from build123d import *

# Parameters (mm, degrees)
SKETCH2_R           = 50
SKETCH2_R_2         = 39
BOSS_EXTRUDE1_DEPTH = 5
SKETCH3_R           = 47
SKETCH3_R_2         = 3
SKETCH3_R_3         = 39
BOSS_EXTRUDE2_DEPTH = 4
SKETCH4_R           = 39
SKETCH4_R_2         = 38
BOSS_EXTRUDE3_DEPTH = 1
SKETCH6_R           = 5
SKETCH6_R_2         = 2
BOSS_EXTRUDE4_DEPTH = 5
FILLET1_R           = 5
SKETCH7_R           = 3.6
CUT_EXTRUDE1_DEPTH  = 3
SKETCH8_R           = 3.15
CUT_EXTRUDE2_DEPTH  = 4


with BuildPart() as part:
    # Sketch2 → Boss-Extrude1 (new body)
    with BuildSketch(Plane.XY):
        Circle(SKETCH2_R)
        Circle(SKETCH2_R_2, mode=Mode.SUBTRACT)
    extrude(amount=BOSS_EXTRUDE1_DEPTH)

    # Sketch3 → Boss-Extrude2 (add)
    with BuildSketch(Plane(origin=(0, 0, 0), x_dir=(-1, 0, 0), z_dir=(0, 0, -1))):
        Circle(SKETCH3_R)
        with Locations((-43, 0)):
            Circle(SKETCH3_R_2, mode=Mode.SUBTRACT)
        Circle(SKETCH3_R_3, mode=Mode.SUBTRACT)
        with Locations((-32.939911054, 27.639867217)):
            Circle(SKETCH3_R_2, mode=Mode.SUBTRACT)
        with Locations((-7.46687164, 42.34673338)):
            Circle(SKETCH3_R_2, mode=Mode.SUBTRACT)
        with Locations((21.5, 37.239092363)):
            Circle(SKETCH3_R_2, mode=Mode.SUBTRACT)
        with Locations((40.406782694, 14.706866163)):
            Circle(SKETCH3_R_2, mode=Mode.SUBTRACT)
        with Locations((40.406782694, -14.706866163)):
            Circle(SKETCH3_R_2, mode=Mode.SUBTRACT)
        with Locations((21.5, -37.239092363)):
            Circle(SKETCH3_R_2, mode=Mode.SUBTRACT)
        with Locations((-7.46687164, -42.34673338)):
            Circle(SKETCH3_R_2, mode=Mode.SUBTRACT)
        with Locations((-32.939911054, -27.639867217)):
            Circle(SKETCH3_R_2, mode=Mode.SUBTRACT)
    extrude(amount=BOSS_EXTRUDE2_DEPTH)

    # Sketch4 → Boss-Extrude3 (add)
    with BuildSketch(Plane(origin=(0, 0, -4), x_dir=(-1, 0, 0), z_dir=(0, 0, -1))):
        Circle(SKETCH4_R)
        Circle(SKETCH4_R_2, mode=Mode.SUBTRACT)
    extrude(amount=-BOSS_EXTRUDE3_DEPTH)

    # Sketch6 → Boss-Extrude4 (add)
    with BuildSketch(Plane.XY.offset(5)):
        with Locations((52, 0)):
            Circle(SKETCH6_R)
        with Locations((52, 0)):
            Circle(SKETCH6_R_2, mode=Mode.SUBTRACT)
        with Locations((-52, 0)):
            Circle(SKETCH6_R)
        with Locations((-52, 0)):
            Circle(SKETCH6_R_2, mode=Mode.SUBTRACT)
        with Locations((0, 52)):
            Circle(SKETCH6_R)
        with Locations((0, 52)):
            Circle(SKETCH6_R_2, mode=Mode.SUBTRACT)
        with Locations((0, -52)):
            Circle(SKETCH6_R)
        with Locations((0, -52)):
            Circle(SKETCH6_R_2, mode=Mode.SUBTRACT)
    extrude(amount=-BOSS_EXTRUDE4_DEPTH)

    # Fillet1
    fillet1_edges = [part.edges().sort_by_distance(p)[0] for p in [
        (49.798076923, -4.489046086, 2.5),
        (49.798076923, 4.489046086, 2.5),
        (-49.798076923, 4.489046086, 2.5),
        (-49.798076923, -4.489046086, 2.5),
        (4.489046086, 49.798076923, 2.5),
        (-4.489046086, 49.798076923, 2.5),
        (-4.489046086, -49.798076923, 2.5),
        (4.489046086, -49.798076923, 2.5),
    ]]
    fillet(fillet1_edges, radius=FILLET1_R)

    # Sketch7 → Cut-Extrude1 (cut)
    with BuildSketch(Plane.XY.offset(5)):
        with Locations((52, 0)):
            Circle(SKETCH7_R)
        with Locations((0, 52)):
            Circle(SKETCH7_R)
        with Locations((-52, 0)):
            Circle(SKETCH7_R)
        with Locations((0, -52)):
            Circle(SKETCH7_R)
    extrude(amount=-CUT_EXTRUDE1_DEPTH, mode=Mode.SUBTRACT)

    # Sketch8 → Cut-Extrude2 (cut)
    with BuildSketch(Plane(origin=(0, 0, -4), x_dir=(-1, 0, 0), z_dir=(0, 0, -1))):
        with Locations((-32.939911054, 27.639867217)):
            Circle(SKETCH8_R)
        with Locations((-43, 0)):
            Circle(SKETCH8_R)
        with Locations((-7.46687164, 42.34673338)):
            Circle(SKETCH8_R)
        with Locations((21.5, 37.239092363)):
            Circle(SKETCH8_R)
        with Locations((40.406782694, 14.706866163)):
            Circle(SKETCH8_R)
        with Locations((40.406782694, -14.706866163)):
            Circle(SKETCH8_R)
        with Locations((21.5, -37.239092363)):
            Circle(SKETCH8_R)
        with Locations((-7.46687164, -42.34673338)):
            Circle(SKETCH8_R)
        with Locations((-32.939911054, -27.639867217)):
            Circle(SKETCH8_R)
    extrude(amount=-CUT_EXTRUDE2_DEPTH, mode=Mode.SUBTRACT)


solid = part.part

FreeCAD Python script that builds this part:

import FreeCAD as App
import Part
import Sketcher


def edges_at(feature, points):
    """Names of the edges that pass closest to the given points."""
    edges = feature.Shape.Edges
    near = lambda p: min(range(len(edges)), key=lambda i: edges[i].distToShape(Part.Vertex(*p))[0])
    return sorted({f"Edge{near(p) + 1}" for p in points})

doc = App.newDocument("Part")
body = doc.addObject("PartDesign::Body", "Body")

# Sketch on XY plane
sketch1 = doc.addObject("Sketcher::SketchObject", "Sketch")
body.addObject(sketch1)
sketch1.AttachmentSupport = (doc.XY_Plane, [""])
sketch1.MapMode = "FlatFace"
sketch1.addGeometry([
    Part.Circle(App.Vector(0, 0, 0), App.Vector(0, 0, 1), 50),
    Part.Circle(App.Vector(0, 0, 0), App.Vector(0, 0, 1), 39),
], False)
sketch1.addConstraint([
    Sketcher.Constraint("Coincident", 0, 3, -1, 1),
    Sketcher.Constraint("Coincident", 1, 3, -1, 1),
    Sketcher.Constraint("Diameter", 0, 100.0),
    Sketcher.Constraint("Diameter", 1, 78.0),
])
pad1 = doc.addObject("PartDesign::Pad", "Pad")
body.addObject(pad1)
pad1.Profile = sketch1
pad1.Length = 5

# Sketch on XY plane
sketch2 = doc.addObject("Sketcher::SketchObject", "Sketch001")
body.addObject(sketch2)
sketch2.AttachmentSupport = (doc.XY_Plane, [""])
sketch2.MapMode = "FlatFace"
sketch2.addGeometry([
    Part.Circle(App.Vector(0, 0, 0), App.Vector(0, 0, 1), 47),  # 0
    Part.Circle(App.Vector(32.9, -27.6, 0), App.Vector(0, 0, 1), 3),  # 1
    Part.Circle(App.Vector(7.5, -42.3, 0), App.Vector(0, 0, 1), 3),  # 2
    Part.Circle(App.Vector(-21.5, -37.2, 0), App.Vector(0, 0, 1), 3),  # 3
    Part.Circle(App.Vector(-40.4, -14.7, 0), App.Vector(0, 0, 1), 3),  # 4
    Part.Circle(App.Vector(43, 0, 0), App.Vector(0, 0, 1), 3),  # 5
    Part.Circle(App.Vector(32.9, 27.6, 0), App.Vector(0, 0, 1), 3),  # 6
    Part.Circle(App.Vector(7.5, 42.3, 0), App.Vector(0, 0, 1), 3),  # 7
    Part.Circle(App.Vector(0, 0, 0), App.Vector(0, 0, 1), 39),  # 8
    Part.Circle(App.Vector(-40.4, 14.7, 0), App.Vector(0, 0, 1), 3),  # 9
    Part.Circle(App.Vector(-21.5, 37.2, 0), App.Vector(0, 0, 1), 3),  # 10
], False)
sketch2.addConstraint([
    Sketcher.Constraint("Coincident", 0, 3, -1, 1),
    Sketcher.Constraint("Coincident", 8, 3, -1, 1),
    Sketcher.Constraint("Equal", 1, 2),
    Sketcher.Constraint("Equal", 2, 3),
    Sketcher.Constraint("Equal", 3, 4),
    Sketcher.Constraint("Equal", 4, 5),
    Sketcher.Constraint("Equal", 5, 6),
    Sketcher.Constraint("Equal", 6, 7),
    Sketcher.Constraint("Equal", 7, 9),
    Sketcher.Constraint("Equal", 9, 10),
    Sketcher.Constraint("Symmetric", 1, 3, 6, 3, -1),
    Sketcher.Constraint("Symmetric", 2, 3, 7, 3, -1),
    Sketcher.Constraint("Symmetric", 4, 3, 9, 3, -1),
    Sketcher.Constraint("Symmetric", 3, 3, 10, 3, -1),
    Sketcher.Constraint("PointOnObject", 5, 3, -1),
    Sketcher.Constraint("Diameter", 0, 94.0),
    Sketcher.Constraint("Diameter", 1, 6.0),
    Sketcher.Constraint("Diameter", 8, 78.0),
    Sketcher.Constraint("DistanceX", -1, 1, 5, 3, 43.0),
    Sketcher.Constraint("DistanceX", 3, 3, -1, 1, 21.5),
    Sketcher.Constraint("DistanceY", 1, 3, 4, 3, 12.933001),
    Sketcher.Constraint("DistanceY", 2, 3, 6, 3, 69.986601),
    Sketcher.Constraint("DistanceX", -1, 1, 1, 3, 32.939911),
    Sketcher.Constraint("DistanceX", -1, 1, 2, 3, 7.466872),
    Sketcher.Constraint("DistanceY", 2, 3, 3, 3, 5.107641),
    Sketcher.Constraint("DistanceY", 1, 3, -1, 1, 27.639867),
    Sketcher.Constraint("DistanceX", 4, 3, -1, 1, 40.406783),
])
pad2 = doc.addObject("PartDesign::Pad", "Pad001")
body.addObject(pad2)
pad2.Profile = sketch2
pad2.Length = 4
pad2.Reversed = True

# Sketch on XY plane
sketch3 = doc.addObject("Sketcher::SketchObject", "Sketch002")
body.addObject(sketch3)
sketch3.AttachmentSupport = (doc.XY_Plane, [""])
sketch3.MapMode = "FlatFace"
sketch3.AttachmentOffset = App.Placement(App.Vector(0, 0, -4), App.Rotation())
sketch3.addGeometry([
    Part.Circle(App.Vector(0, 0, 0), App.Vector(0, 0, 1), 39),
    Part.Circle(App.Vector(0, 0, 0), App.Vector(0, 0, 1), 38),
], False)
sketch3.addConstraint([
    Sketcher.Constraint("Coincident", 0, 3, -1, 1),
    Sketcher.Constraint("Coincident", 1, 3, -1, 1),
    Sketcher.Constraint("Diameter", 0, 78.0),
    Sketcher.Constraint("Diameter", 1, 76.0),
])
pad3 = doc.addObject("PartDesign::Pad", "Pad002")
body.addObject(pad3)
pad3.Profile = sketch3
pad3.Length = 1

# Sketch on XY plane
sketch4 = doc.addObject("Sketcher::SketchObject", "Sketch003")
body.addObject(sketch4)
sketch4.AttachmentSupport = (doc.XY_Plane, [""])
sketch4.MapMode = "FlatFace"
sketch4.AttachmentOffset = App.Placement(App.Vector(0, 0, 5), App.Rotation())
sketch4.addGeometry([
    Part.Circle(App.Vector(52, 0, 0), App.Vector(0, 0, 1), 5),  # 0
    Part.Circle(App.Vector(52, 0, 0), App.Vector(0, 0, 1), 2),  # 1
    Part.Circle(App.Vector(-52, 0, 0), App.Vector(0, 0, 1), 5),  # 2
    Part.Circle(App.Vector(-52, 0, 0), App.Vector(0, 0, 1), 2),  # 3
    Part.Circle(App.Vector(0, 52, 0), App.Vector(0, 0, 1), 5),  # 4
    Part.Circle(App.Vector(0, 52, 0), App.Vector(0, 0, 1), 2),  # 5
    Part.Circle(App.Vector(0, -52, 0), App.Vector(0, 0, 1), 5),  # 6
    Part.Circle(App.Vector(0, -52, 0), App.Vector(0, 0, 1), 2),  # 7
], False)
sketch4.addConstraint([
    Sketcher.Constraint("Coincident", 1, 3, 0, 3),
    Sketcher.Constraint("Coincident", 3, 3, 2, 3),
    Sketcher.Constraint("Coincident", 5, 3, 4, 3),
    Sketcher.Constraint("Coincident", 7, 3, 6, 3),
    Sketcher.Constraint("Equal", 0, 2),
    Sketcher.Constraint("Equal", 1, 3),
    Sketcher.Constraint("Equal", 2, 4),
    Sketcher.Constraint("Equal", 3, 5),
    Sketcher.Constraint("Equal", 4, 6),
    Sketcher.Constraint("Equal", 5, 7),
    Sketcher.Constraint("Symmetric", 0, 3, 2, 3, -1, 1),
    Sketcher.Constraint("Symmetric", 4, 3, 6, 3, -1, 1),
    Sketcher.Constraint("PointOnObject", 0, 3, -1),
    Sketcher.Constraint("PointOnObject", 4, 3, -2),
    Sketcher.Constraint("Diameter", 0, 10.0),
    Sketcher.Constraint("Diameter", 1, 4.0),
    Sketcher.Constraint("DistanceX", -1, 1, 0, 3, 52.0),
    Sketcher.Constraint("DistanceY", -1, 1, 4, 3, 52.0),
])
pad4 = doc.addObject("PartDesign::Pad", "Pad003")
body.addObject(pad4)
pad4.Profile = sketch4
pad4.Length = 5
pad4.Reversed = True
doc.recompute()

fillet = doc.addObject("PartDesign::Fillet", "Fillet")
body.addObject(fillet)
fillet.Base = (pad4, edges_at(pad4, [
    (49.798, -4.489, 2.5),
    (49.798, 4.489, 2.5),
    (-49.798, 4.489, 2.5),
    (-49.798, -4.489, 2.5),
    (4.489, 49.798, 2.5),
    (-4.489, 49.798, 2.5),
    (-4.489, -49.798, 2.5),
    (4.489, -49.798, 2.5),
]))
fillet.Radius = 5

# Sketch on XY plane
sketch5 = doc.addObject("Sketcher::SketchObject", "Sketch004")
body.addObject(sketch5)
sketch5.AttachmentSupport = (doc.XY_Plane, [""])
sketch5.MapMode = "FlatFace"
sketch5.AttachmentOffset = App.Placement(App.Vector(0, 0, 5), App.Rotation())
sketch5.addGeometry([
    Part.Circle(App.Vector(52, 0, 0), App.Vector(0, 0, 1), 3.6),
    Part.Circle(App.Vector(0, 52, 0), App.Vector(0, 0, 1), 3.6),
    Part.Circle(App.Vector(-52, 0, 0), App.Vector(0, 0, 1), 3.6),
    Part.Circle(App.Vector(0, -52, 0), App.Vector(0, 0, 1), 3.6),
], False)
sketch5.addConstraint([
    Sketcher.Constraint("Equal", 0, 1),
    Sketcher.Constraint("Equal", 1, 2),
    Sketcher.Constraint("Equal", 2, 3),
    Sketcher.Constraint("Symmetric", 0, 3, 2, 3, -1, 1),
    Sketcher.Constraint("Symmetric", 1, 3, 3, 3, -1, 1),
    Sketcher.Constraint("PointOnObject", 0, 3, -1),
    Sketcher.Constraint("PointOnObject", 1, 3, -2),
    Sketcher.Constraint("Diameter", 0, 7.2),
    Sketcher.Constraint("DistanceX", -1, 1, 0, 3, 52.0),
    Sketcher.Constraint("DistanceY", -1, 1, 1, 3, 52.0),
])
pocket1 = doc.addObject("PartDesign::Pocket", "Pocket")
body.addObject(pocket1)
pocket1.Profile = sketch5
pocket1.Length = 3

# Sketch on XY plane
sketch6 = doc.addObject("Sketcher::SketchObject", "Sketch005")
body.addObject(sketch6)
sketch6.AttachmentSupport = (doc.XY_Plane, [""])
sketch6.MapMode = "FlatFace"
sketch6.AttachmentOffset = App.Placement(App.Vector(0, 0, -4), App.Rotation())
sketch6.addGeometry([
    Part.Circle(App.Vector(32.9, 27.6, 0), App.Vector(0, 0, 1), 3.1),  # 0
    Part.Circle(App.Vector(43, 0, 0), App.Vector(0, 0, 1), 3.1),  # 1
    Part.Circle(App.Vector(7.5, 42.3, 0), App.Vector(0, 0, 1), 3.1),  # 2
    Part.Circle(App.Vector(-21.5, 37.2, 0), App.Vector(0, 0, 1), 3.1),  # 3
    Part.Circle(App.Vector(-40.4, 14.7, 0), App.Vector(0, 0, 1), 3.1),  # 4
    Part.Circle(App.Vector(-40.4, -14.7, 0), App.Vector(0, 0, 1), 3.1),  # 5
    Part.Circle(App.Vector(-21.5, -37.2, 0), App.Vector(0, 0, 1), 3.1),  # 6
    Part.Circle(App.Vector(7.5, -42.3, 0), App.Vector(0, 0, 1), 3.1),  # 7
    Part.Circle(App.Vector(32.9, -27.6, 0), App.Vector(0, 0, 1), 3.1),  # 8
], False)
sketch6.addConstraint([
    Sketcher.Constraint("Equal", 0, 1),
    Sketcher.Constraint("Equal", 1, 2),
    Sketcher.Constraint("Equal", 2, 3),
    Sketcher.Constraint("Equal", 3, 4),
    Sketcher.Constraint("Equal", 4, 5),
    Sketcher.Constraint("Equal", 5, 6),
    Sketcher.Constraint("Equal", 6, 7),
    Sketcher.Constraint("Equal", 7, 8),
    Sketcher.Constraint("Symmetric", 4, 3, 5, 3, -1),
    Sketcher.Constraint("Symmetric", 3, 3, 6, 3, -1),
    Sketcher.Constraint("Symmetric", 2, 3, 7, 3, -1),
    Sketcher.Constraint("Symmetric", 0, 3, 8, 3, -1),
    Sketcher.Constraint("PointOnObject", 1, 3, -1),
    Sketcher.Constraint("Diameter", 0, 6.3),
    Sketcher.Constraint("DistanceX", -1, 1, 1, 3, 43.0),
    Sketcher.Constraint("DistanceX", 3, 3, -1, 1, 21.5),
    Sketcher.Constraint("DistanceY", 4, 3, 0, 3, 12.933001),
    Sketcher.Constraint("DistanceY", 5, 3, 2, 3, 57.0536),
    Sketcher.Constraint("DistanceX", -1, 1, 0, 3, 32.939911),
    Sketcher.Constraint("DistanceX", -1, 1, 2, 3, 7.466872),
    Sketcher.Constraint("DistanceY", 3, 3, 2, 3, 5.107641),
    Sketcher.Constraint("DistanceY", -1, 1, 0, 3, 27.639867),
    Sketcher.Constraint("DistanceX", 4, 3, -1, 1, 40.406783),
])
pocket2 = doc.addObject("PartDesign::Pocket", "Pocket001")
body.addObject(pocket2)
pocket2.Profile = sketch6
pocket2.Length = 4
pocket2.Reversed = True

doc.recompute()
